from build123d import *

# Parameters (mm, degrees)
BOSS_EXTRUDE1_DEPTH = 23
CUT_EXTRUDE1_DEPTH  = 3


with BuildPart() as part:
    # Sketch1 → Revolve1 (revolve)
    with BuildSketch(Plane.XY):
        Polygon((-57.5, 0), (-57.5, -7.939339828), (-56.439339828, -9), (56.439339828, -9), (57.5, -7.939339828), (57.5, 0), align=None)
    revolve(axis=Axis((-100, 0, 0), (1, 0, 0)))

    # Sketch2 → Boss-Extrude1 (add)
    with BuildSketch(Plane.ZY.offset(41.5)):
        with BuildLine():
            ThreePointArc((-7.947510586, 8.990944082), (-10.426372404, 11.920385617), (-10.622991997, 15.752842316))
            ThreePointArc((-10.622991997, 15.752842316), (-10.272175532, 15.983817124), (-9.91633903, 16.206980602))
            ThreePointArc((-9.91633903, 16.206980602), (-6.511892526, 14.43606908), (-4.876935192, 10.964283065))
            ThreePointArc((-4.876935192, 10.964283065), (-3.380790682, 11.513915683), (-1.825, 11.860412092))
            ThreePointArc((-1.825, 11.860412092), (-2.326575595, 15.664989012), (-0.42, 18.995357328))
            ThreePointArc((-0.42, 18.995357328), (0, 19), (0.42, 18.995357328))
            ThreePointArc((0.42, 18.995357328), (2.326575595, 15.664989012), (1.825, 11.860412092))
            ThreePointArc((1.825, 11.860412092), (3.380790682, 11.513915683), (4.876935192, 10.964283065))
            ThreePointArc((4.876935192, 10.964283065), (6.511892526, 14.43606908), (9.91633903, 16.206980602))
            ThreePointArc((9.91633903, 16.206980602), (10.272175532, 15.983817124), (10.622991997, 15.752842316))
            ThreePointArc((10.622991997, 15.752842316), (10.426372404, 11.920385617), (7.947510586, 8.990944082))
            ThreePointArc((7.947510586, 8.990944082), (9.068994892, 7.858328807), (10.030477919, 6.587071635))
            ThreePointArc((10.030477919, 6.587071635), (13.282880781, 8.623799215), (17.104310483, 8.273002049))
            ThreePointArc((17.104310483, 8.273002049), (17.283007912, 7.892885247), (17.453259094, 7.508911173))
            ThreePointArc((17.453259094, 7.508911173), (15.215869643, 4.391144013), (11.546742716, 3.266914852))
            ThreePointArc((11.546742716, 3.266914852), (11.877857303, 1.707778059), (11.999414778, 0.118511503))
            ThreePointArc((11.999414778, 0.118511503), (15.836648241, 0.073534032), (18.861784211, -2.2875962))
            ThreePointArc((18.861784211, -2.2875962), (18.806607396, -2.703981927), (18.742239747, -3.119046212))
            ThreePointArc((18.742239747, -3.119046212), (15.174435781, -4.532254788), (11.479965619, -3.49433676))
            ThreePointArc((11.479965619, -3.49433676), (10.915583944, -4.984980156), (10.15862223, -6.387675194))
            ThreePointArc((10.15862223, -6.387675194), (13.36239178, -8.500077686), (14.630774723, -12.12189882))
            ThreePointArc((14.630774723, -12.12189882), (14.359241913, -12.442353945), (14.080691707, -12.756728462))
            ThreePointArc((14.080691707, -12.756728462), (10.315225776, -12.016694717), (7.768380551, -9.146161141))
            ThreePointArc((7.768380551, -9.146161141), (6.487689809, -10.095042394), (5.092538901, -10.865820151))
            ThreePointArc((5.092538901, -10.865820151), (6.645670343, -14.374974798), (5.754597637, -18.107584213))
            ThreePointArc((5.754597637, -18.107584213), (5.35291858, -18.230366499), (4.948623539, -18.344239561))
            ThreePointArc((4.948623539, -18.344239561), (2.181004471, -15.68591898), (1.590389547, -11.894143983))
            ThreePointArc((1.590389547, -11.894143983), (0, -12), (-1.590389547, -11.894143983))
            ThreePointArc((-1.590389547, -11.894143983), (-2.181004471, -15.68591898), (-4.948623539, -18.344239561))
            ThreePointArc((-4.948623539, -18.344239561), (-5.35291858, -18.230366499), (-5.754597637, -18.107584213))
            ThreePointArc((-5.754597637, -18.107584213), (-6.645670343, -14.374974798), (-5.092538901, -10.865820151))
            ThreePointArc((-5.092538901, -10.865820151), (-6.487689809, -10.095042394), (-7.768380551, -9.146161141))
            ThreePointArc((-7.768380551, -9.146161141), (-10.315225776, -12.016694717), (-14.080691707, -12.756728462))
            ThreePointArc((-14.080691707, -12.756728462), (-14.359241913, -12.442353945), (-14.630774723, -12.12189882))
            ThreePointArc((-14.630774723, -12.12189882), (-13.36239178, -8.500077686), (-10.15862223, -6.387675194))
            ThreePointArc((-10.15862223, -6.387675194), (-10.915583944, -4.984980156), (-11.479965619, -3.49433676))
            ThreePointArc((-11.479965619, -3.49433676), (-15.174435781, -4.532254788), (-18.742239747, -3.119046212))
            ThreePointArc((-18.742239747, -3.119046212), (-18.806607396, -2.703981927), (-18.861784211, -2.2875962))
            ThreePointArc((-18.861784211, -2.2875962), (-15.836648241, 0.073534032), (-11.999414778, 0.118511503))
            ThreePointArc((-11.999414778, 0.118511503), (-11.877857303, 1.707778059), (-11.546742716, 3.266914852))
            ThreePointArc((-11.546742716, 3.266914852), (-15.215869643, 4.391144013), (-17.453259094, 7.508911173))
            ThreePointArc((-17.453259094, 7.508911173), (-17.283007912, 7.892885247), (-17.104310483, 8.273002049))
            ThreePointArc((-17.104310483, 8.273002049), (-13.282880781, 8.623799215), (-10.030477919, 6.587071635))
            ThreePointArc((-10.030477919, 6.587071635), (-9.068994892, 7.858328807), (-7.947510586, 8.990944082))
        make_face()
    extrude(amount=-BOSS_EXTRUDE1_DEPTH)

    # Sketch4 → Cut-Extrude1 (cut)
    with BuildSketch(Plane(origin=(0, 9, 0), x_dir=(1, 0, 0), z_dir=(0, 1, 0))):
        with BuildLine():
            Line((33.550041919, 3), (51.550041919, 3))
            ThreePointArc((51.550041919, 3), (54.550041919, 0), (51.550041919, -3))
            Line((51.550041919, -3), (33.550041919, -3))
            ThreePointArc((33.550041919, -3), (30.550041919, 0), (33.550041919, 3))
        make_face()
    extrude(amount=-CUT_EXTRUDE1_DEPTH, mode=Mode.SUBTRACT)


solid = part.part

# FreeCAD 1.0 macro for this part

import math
import FreeCAD as App
import Part
import Sketcher
Q = App.Units.Quantity


def add_polygon(sketch, points):
    """Adds a closed chain of lines whose ends are joined by coincident constraints."""
    first, n = sketch.GeometryCount, len(points)
    for a, b in zip(points, points[1:] + points[:1]):
        sketch.addGeometry(Part.LineSegment(App.Vector(*a, 0), App.Vector(*b, 0)), False)
    for i in range(n):
        sketch.addConstraint(Sketcher.Constraint("Coincident", first + i, 2, first + (i + 1) % n, 1))

doc = App.newDocument("Part")
body = doc.addObject("PartDesign::Body", "Body")

# Sketch on XY plane
sketch1 = doc.addObject("Sketcher::SketchObject", "Sketch")
body.addObject(sketch1)
sketch1.AttachmentSupport = (doc.XY_Plane, [""])
sketch1.MapMode = "FlatFace"
add_polygon(sketch1, [(-57.5, 0), (-57.5, -7.9), (-56.4, -9), (56.4, -9), (57.5, -7.9), (57.5, 0)])  # lines 0-5
sketch1.addConstraint([
    Sketcher.Constraint("Vertical", 0),
    Sketcher.Constraint("Horizontal", 2),
    Sketcher.Constraint("Vertical", 4),
    Sketcher.Constraint("Horizontal", 5),
    Sketcher.Constraint("Symmetric", 4, 2, 5, 2, -1, 1),
    Sketcher.Constraint("Perpendicular", 1, 3),
    Sketcher.Constraint("Horizontal", 0, 2, 3, 2),
    Sketcher.Constraint("Equal", 1, 3),
    Sketcher.Constraint("DistanceX", 5, 2, 5, 1, Q("115 mm")),
    Sketcher.Constraint("DistanceY", 1, 2, -1, 1, Q("9 mm")),
    Sketcher.Constraint("Distance", 1, Q("1.5 mm")),
])
revolution = doc.addObject("PartDesign::Revolution", "Revolution")
body.addObject(revolution)
revolution.Profile = sketch1
revolution.ReferenceAxis = (sketch1, ["H_Axis"])
revolution.Angle = 360

# Sketch on YZ plane
sketch2 = doc.addObject("Sketcher::SketchObject", "Sketch001")
body.addObject(sketch2)
sketch2.AttachmentSupport = (doc.YZ_Plane, [""])
sketch2.MapMode = "FlatFace"
sketch2.AttachmentOffset = App.Placement(App.Vector(0, 0, -41.5), App.Rotation())
sketch2.addGeometry([
    Part.ArcOfCircle(Part.Circle(App.Vector(14.1, -4.8, 0), App.Vector(0, 0, 1), 6), math.radians(-149), math.radians(-74)),  # 0
    Part.ArcOfCircle(Part.Circle(App.Vector(0, 0, 0), App.Vector(0, 0, 1), 12), math.radians(-56.71), math.radians(-41.47)),  # 1
    Part.ArcOfCircle(Part.Circle(App.Vector(2.8, -14.7, 0), App.Vector(0, 0, 1), 6), math.radians(-24), math.radians(51)),  # 2
    Part.ArcOfCircle(Part.Circle(App.Vector(0, 0, 0), App.Vector(0, 0, 1), 19), math.radians(-66.72), math.radians(-64.19)),  # 3
    Part.ArcOfCircle(Part.Circle(App.Vector(9.3, -11.7, 0), App.Vector(0, 0, 1), 6), math.radians(178), math.radians(253)),  # 4
    Part.ArcOfCircle(Part.Circle(App.Vector(0, 0, 0), App.Vector(0, 0, 1), 12), math.radians(-89.43), math.radians(-74.2)),  # 5
    Part.ArcOfCircle(Part.Circle(App.Vector(-5.6, -13.9, 0), App.Vector(0, 0, 1), 6), math.radians(-57), math.radians(18)),  # 6
    Part.ArcOfCircle(Part.Circle(App.Vector(0, 0, 0), App.Vector(0, 0, 1), 19), math.radians(-99.45), math.radians(-96.92)),  # 7
    Part.ArcOfCircle(Part.Circle(App.Vector(1.5, -14.9, 0), App.Vector(0, 0, 1), 6), math.radians(146), math.radians(220)),  # 8
    Part.ArcOfCircle(Part.Circle(App.Vector(0, 0, 0), App.Vector(0, 0, 1), 12), math.radians(-122.16), math.radians(-106.93)),  # 9
    Part.ArcOfCircle(Part.Circle(App.Vector(-12.2, -8.6, 0), App.Vector(0, 0, 1), 6), math.radians(-89), math.radians(-15)),  # 10
    Part.ArcOfCircle(Part.Circle(App.Vector(0, 0, 0), App.Vector(0, 0, 1), 19), math.radians(-132.18), math.radians(-129.64)),  # 11
    Part.ArcOfCircle(Part.Circle(App.Vector(-6.8, -13.3, 0), App.Vector(0, 0, 1), 6), math.radians(113), math.radians(188)),  # 12
    Part.ArcOfCircle(Part.Circle(App.Vector(0, 0, 0), App.Vector(0, 0, 1), 12), math.radians(-154.89), math.radians(-139.66)),  # 13
    Part.ArcOfCircle(Part.Circle(App.Vector(-14.9, -0.7, 0), App.Vector(0, 0, 1), 6), math.radians(-122), math.radians(-47)),  # 14
    Part.ArcOfCircle(Part.Circle(App.Vector(0, 0, 0), App.Vector(0, 0, 1), 19), math.radians(-164.9), math.radians(-162.37)),  # 15
    Part.ArcOfCircle(Part.Circle(App.Vector(-12.9, -7.5, 0), App.Vector(0, 0, 1), 6), math.radians(80), math.radians(155)),  # 16
    Part.ArcOfCircle(Part.Circle(App.Vector(0, 0, 0), App.Vector(0, 0, 1), 12), math.radians(172.38), math.radians(187.62)),  # 17
    Part.ArcOfCircle(Part.Circle(App.Vector(-12.9, 7.5, 0), App.Vector(0, 0, 1), 6), math.radians(-155), math.radians(-80)),  # 18
    Part.ArcOfCircle(Part.Circle(App.Vector(0, 0, 0), App.Vector(0, 0, 1), 19), math.radians(162.37), math.radians(164.9)),  # 19
    Part.ArcOfCircle(Part.Circle(App.Vector(-14.9, 0.7, 0), App.Vector(0, 0, 1), 6), math.radians(47), math.radians(122)),  # 20
    Part.ArcOfCircle(Part.Circle(App.Vector(0, 0, 0), App.Vector(0, 0, 1), 12), math.radians(139.66), math.radians(154.89)),  # 21
    Part.ArcOfCircle(Part.Circle(App.Vector(-6.8, 13.3, 0), App.Vector(0, 0, 1), 6), math.radians(172), math.radians(247)),  # 22
    Part.ArcOfCircle(Part.Circle(App.Vector(0, 0, 0), App.Vector(0, 0, 1), 19), math.radians(129.64), math.radians(132.18)),  # 23
    Part.ArcOfCircle(Part.Circle(App.Vector(-12.2, 8.6, 0), App.Vector(0, 0, 1), 6), math.radians(15), math.radians(89)),  # 24
    Part.ArcOfCircle(Part.Circle(App.Vector(0, 0, 0), App.Vector(0, 0, 1), 12), math.radians(106.93), math.radians(122.16)),  # 25
    Part.ArcOfCircle(Part.Circle(App.Vector(1.5, 14.9, 0), App.Vector(0, 0, 1), 6), math.radians(140), math.radians(214)),  # 26
    Part.ArcOfCircle(Part.Circle(App.Vector(0, 0, 0), App.Vector(0, 0, 1), 19), math.radians(96.92), math.radians(99.45)),  # 27
    Part.ArcOfCircle(Part.Circle(App.Vector(-5.6, 13.9, 0), App.Vector(0, 0, 1), 6), math.radians(-18), math.radians(57)),  # 28
    Part.ArcOfCircle(Part.Circle(App.Vector(0, 0, 0), App.Vector(0, 0, 1), 12), math.radians(74.2), math.radians(89.43)),  # 29
    Part.ArcOfCircle(Part.Circle(App.Vector(9.3, 11.7, 0), App.Vector(0, 0, 1), 6), math.radians(107), math.radians(182)),  # 30
    Part.ArcOfCircle(Part.Circle(App.Vector(0, 0, 0), App.Vector(0, 0, 1), 19), math.radians(64.19), math.radians(66.72)),  # 31
    Part.ArcOfCircle(Part.Circle(App.Vector(2.8, 14.7, 0), App.Vector(0, 0, 1), 6), math.radians(-51), math.radians(24)),  # 32
    Part.ArcOfCircle(Part.Circle(App.Vector(0, 0, 0), App.Vector(0, 0, 1), 12), math.radians(41.47), math.radians(56.71)),  # 33
    Part.ArcOfCircle(Part.Circle(App.Vector(14.1, 4.8, 0), App.Vector(0, 0, 1), 6), math.radians(74), math.radians(149)),  # 34
    Part.ArcOfCircle(Part.Circle(App.Vector(0, 0, 0), App.Vector(0, 0, 1), 19), math.radians(31.46), math.radians(33.99)),  # 35
    Part.ArcOfCircle(Part.Circle(App.Vector(10.3, 10.8, 0), App.Vector(0, 0, 1), 6), math.radians(-83), math.radians(-9)),  # 36
    Part.ArcOfCircle(Part.Circle(App.Vector(0, 0, 0), App.Vector(0, 0, 1), 12), math.radians(8.75), math.radians(23.98)),  # 37
    Part.ArcOfCircle(Part.Circle(App.Vector(14.5, -3.6, 0), App.Vector(0, 0, 1), 6), math.radians(42), math.radians(116)),  # 38
    Part.ArcOfCircle(Part.Circle(App.Vector(0, 0, 0), App.Vector(0, 0, 1), 19), math.radians(-1.27), math.radians(1.27)),  # 39
    Part.ArcOfCircle(Part.Circle(App.Vector(14.5, 3.6, 0), App.Vector(0, 0, 1), 6), math.radians(-116), math.radians(-42)),  # 40
    Part.ArcOfCircle(Part.Circle(App.Vector(0, 0, 0), App.Vector(0, 0, 1), 12), math.radians(-23.98), math.radians(-8.75)),  # 41
    Part.ArcOfCircle(Part.Circle(App.Vector(10.3, -10.8, 0), App.Vector(0, 0, 1), 6), math.radians(9), math.radians(83)),  # 42
    Part.ArcOfCircle(Part.Circle(App.Vector(0, 0, 0), App.Vector(0, 0, 1), 19), math.radians(-33.99), math.radians(-31.46)),  # 43
], False)
sketch2.addConstraint([
    Sketcher.Constraint("Coincident", 0, 1, 1, 2),
    Sketcher.Constraint("Coincident", 1, 1, 2, 2),
    Sketcher.Constraint("Coincident", 2, 1, 3, 2),
    Sketcher.Constraint("Coincident", 3, 1, 4, 2),
    Sketcher.Constraint("Coincident", 4, 1, 5, 2),
    Sketcher.Constraint("Coincident", 5, 1, 6, 2),
    Sketcher.Constraint("Coincident", 6, 1, 7, 2),
    Sketcher.Constraint("Coincident", 7, 1, 8, 2),
    Sketcher.Constraint("Coincident", 8, 1, 9, 2),
    Sketcher.Constraint("Coincident", 9, 1, 10, 2),
    Sketcher.Constraint("Coincident", 10, 1, 11, 2),
    Sketcher.Constraint("Coincident", 11, 1, 12, 2),
    Sketcher.Constraint("Coincident", 12, 1, 13, 2),
    Sketcher.Constraint("Coincident", 13, 1, 14, 2),
    Sketcher.Constraint("Coincident", 14, 1, 15, 2),
    Sketcher.Constraint("Coincident", 15, 1, 16, 2),
    Sketcher.Constraint("Coincident", 16, 1, 17, 2),
    Sketcher.Constraint("Coincident", 17, 1, 18, 2),
    Sketcher.Constraint("Coincident", 18, 1, 19, 2),
    Sketcher.Constraint("Coincident", 19, 1, 20, 2),
    Sketcher.Constraint("Coincident", 20, 1, 21, 2),
    Sketcher.Constraint("Coincident", 21, 1, 22, 2),
    Sketcher.Constraint("Coincident", 22, 1, 23, 2),
    Sketcher.Constraint("Coincident", 23, 1, 24, 2),
    Sketcher.Constraint("Coincident", 24, 1, 25, 2),
    Sketcher.Constraint("Coincident", 25, 1, 26, 2),
    Sketcher.Constraint("Coincident", 26, 1, 27, 2),
    Sketcher.Constraint("Coincident", 27, 1, 28, 2),
    Sketcher.Constraint("Coincident", 28, 1, 29, 2),
    Sketcher.Constraint("Coincident", 29, 1, 30, 2),
    Sketcher.Constraint("Coincident", 30, 1, 31, 2),
    Sketcher.Constraint("Coincident", 31, 1, 32, 2),
    Sketcher.Constraint("Coincident", 32, 1, 33, 2),
    Sketcher.Constraint("Coincident", 33, 1, 34, 2),
    Sketcher.Constraint("Coincident", 34, 1, 35, 2),
    Sketcher.Constraint("Coincident", 35, 1, 36, 2),
    Sketcher.Constraint("Coincident", 36, 1, 37, 2),
    Sketcher.Constraint("Coincident", 37, 1, 38, 2),
    Sketcher.Constraint("Coincident", 38, 1, 39, 2),
    Sketcher.Constraint("Coincident", 39, 1, 40, 2),
    Sketcher.Constraint("Coincident", 40, 1, 41, 2),
    Sketcher.Constraint("Coincident", 41, 1, 42, 2),
    Sketcher.Constraint("Coincident", 42, 1, 43, 2),
    Sketcher.Constraint("Coincident", 43, 1, 0, 2),
    Sketcher.Constraint("Coincident", 1, 3, -1, 1),
    Sketcher.Constraint("Coincident", 3, 3, -1, 1),
    Sketcher.Constraint("Coincident", 5, 3, -1, 1),
    Sketcher.Constraint("Coincident", 7, 3, -1, 1),
    Sketcher.Constraint("Coincident", 9, 3, -1, 1),
    Sketcher.Constraint("Coincident", 11, 3, -1, 1),
    Sketcher.Constraint("Coincident", 13, 3, -1, 1),
    Sketcher.Constraint("Coincident", 15, 3, -1, 1),
    Sketcher.Constraint("Coincident", 17, 3, -1, 1),
    Sketcher.Constraint("Coincident", 19, 3, -1, 1),
    Sketcher.Constraint("Coincident", 21, 3, -1, 1),
    Sketcher.Constraint("Coincident", 23, 3, -1, 1),
    Sketcher.Constraint("Coincident", 25, 3, -1, 1),
    Sketcher.Constraint("Coincident", 27, 3, -1, 1),
    Sketcher.Constraint("Coincident", 29, 3, -1, 1),
    Sketcher.Constraint("Coincident", 31, 3, -1, 1),
    Sketcher.Constraint("Coincident", 33, 3, -1, 1),
    Sketcher.Constraint("Coincident", 35, 3, -1, 1),
    Sketcher.Constraint("Coincident", 37, 3, -1, 1),
    Sketcher.Constraint("Coincident", 39, 3, -1, 1),
    Sketcher.Constraint("Coincident", 41, 3, -1, 1),
    Sketcher.Constraint("Coincident", 43, 3, -1, 1),
    Sketcher.Constraint("Equal", 0, 2),
    Sketcher.Constraint("Equal", 2, 4),
    Sketcher.Constraint("Equal", 1, 5),
    Sketcher.Constraint("Equal", 4, 6),
    Sketcher.Constraint("Equal", 3, 7),
    Sketcher.Constraint("Equal", 6, 8),
    Sketcher.Constraint("Equal", 5, 9),
    Sketcher.Constraint("Equal", 8, 10),
    Sketcher.Constraint("Equal", 7, 11),
    Sketcher.Constraint("Equal", 10, 12),
    Sketcher.Constraint("Equal", 9, 13),
    Sketcher.Constraint("Equal", 12, 14),
    Sketcher.Constraint("Equal", 11, 15),
    Sketcher.Constraint("Equal", 14, 16),
    Sketcher.Constraint("Equal", 13, 17),
    Sketcher.Constraint("Equal", 16, 18),
    Sketcher.Constraint("Equal", 15, 19),
    Sketcher.Constraint("Equal", 18, 20),
    Sketcher.Constraint("Equal", 17, 21),
    Sketcher.Constraint("Equal", 20, 22),
    Sketcher.Constraint("Equal", 19, 23),
    Sketcher.Constraint("Equal", 22, 24),
    Sketcher.Constraint("Equal", 21, 25),
    Sketcher.Constraint("Equal", 24, 26),
    Sketcher.Constraint("Equal", 23, 27),
    Sketcher.Constraint("Equal", 26, 28),
    Sketcher.Constraint("Equal", 25, 29),
    Sketcher.Constraint("Equal", 28, 30),
    Sketcher.Constraint("Equal", 27, 31),
    Sketcher.Constraint("Equal", 30, 32),
    Sketcher.Constraint("Equal", 29, 33),
    Sketcher.Constraint("Equal", 32, 34),
    Sketcher.Constraint("Equal", 31, 35),
    Sketcher.Constraint("Equal", 34, 36),
    Sketcher.Constraint("Equal", 33, 37),
    Sketcher.Constraint("Equal", 36, 38),
    Sketcher.Constraint("Equal", 38, 40),
    Sketcher.Constraint("Equal", 37, 41),
    Sketcher.Constraint("Equal", 40, 42),
    Sketcher.Constraint("Equal", 35, 43),
    Sketcher.Constraint("Symmetric", 16, 3, 18, 3, -1),
    Sketcher.Constraint("Symmetric", 14, 3, 20, 3, -1),
    Sketcher.Constraint("Symmetric", 12, 3, 22, 3, -1),
    Sketcher.Constraint("Symmetric", 10, 3, 24, 3, -1),
    Sketcher.Constraint("Symmetric", 8, 3, 26, 3, -1),
    Sketcher.Constraint("Symmetric", 6, 3, 28, 3, -1),
    Sketcher.Constraint("Symmetric", 4, 3, 30, 3, -1),
    Sketcher.Constraint("Symmetric", 2, 3, 32, 3, -1),
    Sketcher.Constraint("Symmetric", 0, 3, 34, 3, -1),
    Sketcher.Constraint("Symmetric", 38, 3, 40, 3, -1),
    Sketcher.Constraint("Symmetric", 36, 3, 42, 3, -1),
    Sketcher.Constraint("Radius", 0, Q("6 mm")),
    Sketcher.Constraint("Radius", 1, Q("12 mm")),
    Sketcher.Constraint("Radius", 3, Q("19 mm")),
    Sketcher.Constraint("Radius", 39, Q("19.000002 mm")),
    Sketcher.Constraint("DistanceY", -1, 1, 38, 1, Q("0.42 mm")),
    Sketcher.Constraint("DistanceY", -1, 1, 37, 1, Q("1.825 mm")),
    Sketcher.Constraint("DistanceY", 6, 3, -1, 1, Q("13.851401 mm")),
    Sketcher.Constraint("DistanceX", 10, 1, -1, 1, Q("12.121899 mm")),
    Sketcher.Constraint("DistanceX", -1, 1, 0, 3, Q("14.127889 mm")),
    Sketcher.Constraint("DistanceY", 0, 3, -1, 1, Q("4.847221 mm")),
    Sketcher.Constraint("DistanceY", 2, 3, -1, 1, Q("14.673919 mm")),
    Sketcher.Constraint("DistanceX", -1, 1, 4, 3, Q("9.264531 mm")),
    Sketcher.Constraint("DistanceX", -1, 1, 8, 3, Q("1.45975 mm")),
    Sketcher.Constraint("DistanceY", 8, 3, -1, 1, Q("14.864789 mm")),
    Sketcher.Constraint("DistanceX", 10, 3, -1, 1, Q("12.18999 mm")),
    Sketcher.Constraint("DistanceX", 12, 3, -1, 1, Q("6.808492 mm")),
    Sketcher.Constraint("DistanceX", 14, 3, -1, 1, Q("14.921231 mm")),
    Sketcher.Constraint("DistanceY", 14, 3, -1, 1, Q("0.670588 mm")),
    Sketcher.Constraint("DistanceY", 16, 3, -1, 1, Q("7.502891 mm")),
    Sketcher.Constraint("DistanceY", -1, 1, 36, 3, Q("10.837572 mm")),
    Sketcher.Constraint("DistanceX", -1, 1, 1, 1, Q("6.587072 mm")),
    Sketcher.Constraint("DistanceX", -1, 1, 3, 1, Q("7.508911 mm")),
    Sketcher.Constraint("DistanceX", -1, 1, 5, 1, Q("0.118512 mm")),
    Sketcher.Constraint("DistanceX", 11, 1, -1, 1, Q("12.756728 mm")),
    Sketcher.Constraint("DistanceX", 15, 1, -1, 1, Q("18.34424 mm")),
    Sketcher.Constraint("DistanceX", -1, 1, 35, 1, Q("16.206981 mm")),
])
pad1 = doc.addObject("PartDesign::Pad", "Pad")
body.addObject(pad1)
pad1.Profile = sketch2
pad1.Length = 23

# Sketch on XZ plane
sketch3 = doc.addObject("Sketcher::SketchObject", "Sketch002")
body.addObject(sketch3)
sketch3.AttachmentSupport = (doc.XZ_Plane, [""])
sketch3.MapMode = "FlatFace"
sketch3.AttachmentOffset = App.Placement(App.Vector(0, 0, -9), App.Rotation())
sketch3.addGeometry([
    Part.LineSegment(App.Vector(51.6, -3, 0), App.Vector(33.6, -3, 0)),
    Part.ArcOfCircle(Part.Circle(App.Vector(33.6, 0, 0), App.Vector(0, 0, 1), 3), math.radians(90), math.radians(270)),
    Part.LineSegment(App.Vector(33.6, 3, 0), App.Vector(51.6, 3, 0)),
    Part.ArcOfCircle(Part.Circle(App.Vector(51.6, 0, 0), App.Vector(0, 0, 1), 3), math.radians(-90), math.radians(90)),
], False)
sketch3.addConstraint([
    Sketcher.Constraint("Tangent", 0, 2, 1, 2),
    Sketcher.Constraint("Tangent", 1, 1, 2, 1),
    Sketcher.Constraint("Tangent", 2, 2, 3, 2),
    Sketcher.Constraint("Tangent", 3, 1, 0, 1),
    Sketcher.Constraint("Horizontal", 0),
    Sketcher.Constraint("Horizontal", 2),
    Sketcher.Constraint("PointOnObject", 1, 3, -1),
    Sketcher.Constraint("Radius", 1, Q("3 mm")),
    Sketcher.Constraint("DistanceX", 0, 2, 0, 1, Q("18 mm")),
    Sketcher.Constraint("DistanceX", -1, 1, 1, 3, Q("33.550042 mm")),
])
pocket1 = doc.addObject("PartDesign::Pocket", "Pocket")
body.addObject(pocket1)
pocket1.Profile = sketch3
pocket1.Length = 3
pocket1.Reversed = True

doc.recompute()
